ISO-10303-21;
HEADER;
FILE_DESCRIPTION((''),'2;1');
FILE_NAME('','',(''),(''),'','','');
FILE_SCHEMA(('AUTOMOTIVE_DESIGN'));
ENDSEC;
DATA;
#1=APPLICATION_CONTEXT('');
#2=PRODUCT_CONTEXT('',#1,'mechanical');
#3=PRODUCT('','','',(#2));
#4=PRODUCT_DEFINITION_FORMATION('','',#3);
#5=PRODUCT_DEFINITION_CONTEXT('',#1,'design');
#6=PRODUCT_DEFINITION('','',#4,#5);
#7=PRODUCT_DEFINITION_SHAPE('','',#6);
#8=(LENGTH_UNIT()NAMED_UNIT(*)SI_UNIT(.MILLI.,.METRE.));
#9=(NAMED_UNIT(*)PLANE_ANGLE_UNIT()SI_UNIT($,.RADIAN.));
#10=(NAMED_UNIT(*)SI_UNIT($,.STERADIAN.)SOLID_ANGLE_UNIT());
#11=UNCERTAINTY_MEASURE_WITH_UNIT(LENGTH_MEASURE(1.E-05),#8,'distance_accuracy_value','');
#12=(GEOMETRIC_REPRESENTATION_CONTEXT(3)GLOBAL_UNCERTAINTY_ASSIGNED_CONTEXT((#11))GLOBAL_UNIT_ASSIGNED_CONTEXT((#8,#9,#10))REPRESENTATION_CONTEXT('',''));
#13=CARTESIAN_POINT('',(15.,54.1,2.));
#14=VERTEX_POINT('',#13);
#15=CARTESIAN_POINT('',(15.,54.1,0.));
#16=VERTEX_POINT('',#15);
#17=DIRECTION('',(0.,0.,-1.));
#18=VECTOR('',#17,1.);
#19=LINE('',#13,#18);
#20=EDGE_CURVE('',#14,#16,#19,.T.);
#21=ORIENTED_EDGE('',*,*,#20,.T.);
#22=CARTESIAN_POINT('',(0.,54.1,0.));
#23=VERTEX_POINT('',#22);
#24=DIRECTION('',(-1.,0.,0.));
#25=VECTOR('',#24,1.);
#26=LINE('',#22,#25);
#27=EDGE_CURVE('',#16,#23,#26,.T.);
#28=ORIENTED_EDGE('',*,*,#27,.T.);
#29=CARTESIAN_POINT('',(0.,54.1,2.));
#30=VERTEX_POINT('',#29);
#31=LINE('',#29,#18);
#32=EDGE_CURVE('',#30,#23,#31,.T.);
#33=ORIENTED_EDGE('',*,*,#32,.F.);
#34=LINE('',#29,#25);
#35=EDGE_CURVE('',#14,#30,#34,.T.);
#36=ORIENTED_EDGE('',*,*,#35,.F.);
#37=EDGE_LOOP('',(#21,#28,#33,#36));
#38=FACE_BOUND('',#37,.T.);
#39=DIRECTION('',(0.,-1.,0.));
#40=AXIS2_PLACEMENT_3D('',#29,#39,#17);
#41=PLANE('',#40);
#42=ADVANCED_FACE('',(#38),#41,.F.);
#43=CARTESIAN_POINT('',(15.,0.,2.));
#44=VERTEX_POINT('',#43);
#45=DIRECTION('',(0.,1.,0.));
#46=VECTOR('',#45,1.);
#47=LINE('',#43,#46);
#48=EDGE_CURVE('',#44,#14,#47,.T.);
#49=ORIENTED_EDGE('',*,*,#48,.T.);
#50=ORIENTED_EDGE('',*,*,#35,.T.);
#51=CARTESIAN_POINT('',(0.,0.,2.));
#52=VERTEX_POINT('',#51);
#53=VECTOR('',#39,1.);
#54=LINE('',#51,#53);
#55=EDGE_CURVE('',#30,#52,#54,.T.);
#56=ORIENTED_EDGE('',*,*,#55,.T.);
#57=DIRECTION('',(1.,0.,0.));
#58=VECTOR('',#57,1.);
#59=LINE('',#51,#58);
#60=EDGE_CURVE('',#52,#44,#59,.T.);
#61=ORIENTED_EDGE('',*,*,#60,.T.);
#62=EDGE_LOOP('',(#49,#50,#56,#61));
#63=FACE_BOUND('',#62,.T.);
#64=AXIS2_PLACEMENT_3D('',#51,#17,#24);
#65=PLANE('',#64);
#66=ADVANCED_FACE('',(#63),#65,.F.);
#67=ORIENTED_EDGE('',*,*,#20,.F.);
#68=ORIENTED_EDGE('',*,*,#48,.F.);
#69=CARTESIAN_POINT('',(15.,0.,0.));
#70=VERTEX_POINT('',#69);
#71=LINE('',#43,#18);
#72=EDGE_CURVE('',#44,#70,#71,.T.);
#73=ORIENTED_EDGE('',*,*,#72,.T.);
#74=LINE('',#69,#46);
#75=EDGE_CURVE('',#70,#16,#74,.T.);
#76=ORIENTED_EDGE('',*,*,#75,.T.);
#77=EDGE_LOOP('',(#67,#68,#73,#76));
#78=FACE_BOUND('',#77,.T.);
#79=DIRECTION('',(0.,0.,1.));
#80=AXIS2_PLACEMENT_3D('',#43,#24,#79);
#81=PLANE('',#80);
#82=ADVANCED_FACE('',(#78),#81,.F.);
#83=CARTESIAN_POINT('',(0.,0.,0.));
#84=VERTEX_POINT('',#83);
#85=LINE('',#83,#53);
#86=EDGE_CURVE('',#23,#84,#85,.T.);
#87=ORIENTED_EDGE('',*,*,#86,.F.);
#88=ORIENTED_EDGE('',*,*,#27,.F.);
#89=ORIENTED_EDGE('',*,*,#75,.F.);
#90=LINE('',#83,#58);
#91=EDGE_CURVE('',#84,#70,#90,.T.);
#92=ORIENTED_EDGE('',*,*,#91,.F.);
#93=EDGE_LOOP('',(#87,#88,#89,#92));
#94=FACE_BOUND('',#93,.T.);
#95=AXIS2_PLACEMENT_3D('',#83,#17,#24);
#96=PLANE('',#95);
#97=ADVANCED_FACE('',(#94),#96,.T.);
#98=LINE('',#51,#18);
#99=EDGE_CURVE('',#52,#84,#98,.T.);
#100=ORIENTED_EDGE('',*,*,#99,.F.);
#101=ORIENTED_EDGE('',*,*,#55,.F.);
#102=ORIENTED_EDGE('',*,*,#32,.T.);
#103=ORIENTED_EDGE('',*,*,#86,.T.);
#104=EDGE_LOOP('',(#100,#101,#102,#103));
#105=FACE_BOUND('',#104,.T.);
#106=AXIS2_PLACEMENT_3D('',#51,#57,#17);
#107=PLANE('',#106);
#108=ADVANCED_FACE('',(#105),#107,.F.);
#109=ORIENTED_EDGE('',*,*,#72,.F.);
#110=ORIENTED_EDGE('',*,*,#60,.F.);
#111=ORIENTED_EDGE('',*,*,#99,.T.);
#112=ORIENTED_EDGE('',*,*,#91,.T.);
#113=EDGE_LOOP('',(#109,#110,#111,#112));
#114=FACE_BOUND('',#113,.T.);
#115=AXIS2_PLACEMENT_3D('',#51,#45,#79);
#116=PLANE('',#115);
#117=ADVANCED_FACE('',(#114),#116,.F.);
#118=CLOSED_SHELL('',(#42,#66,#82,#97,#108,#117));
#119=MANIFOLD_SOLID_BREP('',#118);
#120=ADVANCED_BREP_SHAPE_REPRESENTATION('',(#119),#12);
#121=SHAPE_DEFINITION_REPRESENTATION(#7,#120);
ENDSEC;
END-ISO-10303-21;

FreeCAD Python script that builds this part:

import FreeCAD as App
import Part
import Sketcher

doc = App.newDocument("Part")
params = doc.addObject("Spreadsheet::Sheet", "Params")
for row, (alias, value) in enumerate([
    ("sketch1_width", "15 mm"),
    ("sketch1_height", "54.1 mm"),
    ("pad1_length", "2 mm"),
], start=1):
    params.set(f"A{row}", alias)
    params.set(f"B{row}", "=" + value)
    params.setAlias(f"B{row}", alias)

body = doc.addObject("PartDesign::Body", "Body")

# Sketch on XY plane
sketch1 = body.newObject("Sketcher::SketchObject", "Sketch")
sketch1.AttachmentSupport = (doc.getObject("XY_Plane"), [""])
sketch1.MapMode = "FlatFace"
sketch1.addGeometry([
    Part.LineSegment(App.Vector(0, 54.1, 0), App.Vector(0, 0, 0)),
    Part.LineSegment(App.Vector(0, 0, 0), App.Vector(15, 0, 0)),
    Part.LineSegment(App.Vector(15, 0, 0), App.Vector(15, 54.1, 0)),
    Part.LineSegment(App.Vector(15, 54.1, 0), App.Vector(0, 54.1, 0)),
], False)
sketch1.addConstraint([
    Sketcher.Constraint("Coincident", 0, 2, 1, 1),
    Sketcher.Constraint("Coincident", 1, 2, 2, 1),
    Sketcher.Constraint("Coincident", 2, 2, 3, 1),
    Sketcher.Constraint("Coincident", 3, 2, 0, 1),
    Sketcher.Constraint("Vertical", 0),
    Sketcher.Constraint("Horizontal", 1),
    Sketcher.Constraint("Vertical", 2),
    Sketcher.Constraint("Horizontal", 3),
    Sketcher.Constraint("Coincident", 0, 2, -1, 1),
    Sketcher.Constraint("DistanceX", 1, 1, 1, 2, 15.0),
    Sketcher.Constraint("DistanceY", 0, 2, 0, 1, 54.1),
])
sketch1.setExpression("Constraints[9]", "Params.sketch1_width")
sketch1.setExpression("Constraints[10]", "Params.sketch1_height")
pad1 = body.newObject("PartDesign::Pad", "Pad")
pad1.Profile = sketch1
pad1.setExpression("Length", "Params.pad1_length")

doc.recompute()
